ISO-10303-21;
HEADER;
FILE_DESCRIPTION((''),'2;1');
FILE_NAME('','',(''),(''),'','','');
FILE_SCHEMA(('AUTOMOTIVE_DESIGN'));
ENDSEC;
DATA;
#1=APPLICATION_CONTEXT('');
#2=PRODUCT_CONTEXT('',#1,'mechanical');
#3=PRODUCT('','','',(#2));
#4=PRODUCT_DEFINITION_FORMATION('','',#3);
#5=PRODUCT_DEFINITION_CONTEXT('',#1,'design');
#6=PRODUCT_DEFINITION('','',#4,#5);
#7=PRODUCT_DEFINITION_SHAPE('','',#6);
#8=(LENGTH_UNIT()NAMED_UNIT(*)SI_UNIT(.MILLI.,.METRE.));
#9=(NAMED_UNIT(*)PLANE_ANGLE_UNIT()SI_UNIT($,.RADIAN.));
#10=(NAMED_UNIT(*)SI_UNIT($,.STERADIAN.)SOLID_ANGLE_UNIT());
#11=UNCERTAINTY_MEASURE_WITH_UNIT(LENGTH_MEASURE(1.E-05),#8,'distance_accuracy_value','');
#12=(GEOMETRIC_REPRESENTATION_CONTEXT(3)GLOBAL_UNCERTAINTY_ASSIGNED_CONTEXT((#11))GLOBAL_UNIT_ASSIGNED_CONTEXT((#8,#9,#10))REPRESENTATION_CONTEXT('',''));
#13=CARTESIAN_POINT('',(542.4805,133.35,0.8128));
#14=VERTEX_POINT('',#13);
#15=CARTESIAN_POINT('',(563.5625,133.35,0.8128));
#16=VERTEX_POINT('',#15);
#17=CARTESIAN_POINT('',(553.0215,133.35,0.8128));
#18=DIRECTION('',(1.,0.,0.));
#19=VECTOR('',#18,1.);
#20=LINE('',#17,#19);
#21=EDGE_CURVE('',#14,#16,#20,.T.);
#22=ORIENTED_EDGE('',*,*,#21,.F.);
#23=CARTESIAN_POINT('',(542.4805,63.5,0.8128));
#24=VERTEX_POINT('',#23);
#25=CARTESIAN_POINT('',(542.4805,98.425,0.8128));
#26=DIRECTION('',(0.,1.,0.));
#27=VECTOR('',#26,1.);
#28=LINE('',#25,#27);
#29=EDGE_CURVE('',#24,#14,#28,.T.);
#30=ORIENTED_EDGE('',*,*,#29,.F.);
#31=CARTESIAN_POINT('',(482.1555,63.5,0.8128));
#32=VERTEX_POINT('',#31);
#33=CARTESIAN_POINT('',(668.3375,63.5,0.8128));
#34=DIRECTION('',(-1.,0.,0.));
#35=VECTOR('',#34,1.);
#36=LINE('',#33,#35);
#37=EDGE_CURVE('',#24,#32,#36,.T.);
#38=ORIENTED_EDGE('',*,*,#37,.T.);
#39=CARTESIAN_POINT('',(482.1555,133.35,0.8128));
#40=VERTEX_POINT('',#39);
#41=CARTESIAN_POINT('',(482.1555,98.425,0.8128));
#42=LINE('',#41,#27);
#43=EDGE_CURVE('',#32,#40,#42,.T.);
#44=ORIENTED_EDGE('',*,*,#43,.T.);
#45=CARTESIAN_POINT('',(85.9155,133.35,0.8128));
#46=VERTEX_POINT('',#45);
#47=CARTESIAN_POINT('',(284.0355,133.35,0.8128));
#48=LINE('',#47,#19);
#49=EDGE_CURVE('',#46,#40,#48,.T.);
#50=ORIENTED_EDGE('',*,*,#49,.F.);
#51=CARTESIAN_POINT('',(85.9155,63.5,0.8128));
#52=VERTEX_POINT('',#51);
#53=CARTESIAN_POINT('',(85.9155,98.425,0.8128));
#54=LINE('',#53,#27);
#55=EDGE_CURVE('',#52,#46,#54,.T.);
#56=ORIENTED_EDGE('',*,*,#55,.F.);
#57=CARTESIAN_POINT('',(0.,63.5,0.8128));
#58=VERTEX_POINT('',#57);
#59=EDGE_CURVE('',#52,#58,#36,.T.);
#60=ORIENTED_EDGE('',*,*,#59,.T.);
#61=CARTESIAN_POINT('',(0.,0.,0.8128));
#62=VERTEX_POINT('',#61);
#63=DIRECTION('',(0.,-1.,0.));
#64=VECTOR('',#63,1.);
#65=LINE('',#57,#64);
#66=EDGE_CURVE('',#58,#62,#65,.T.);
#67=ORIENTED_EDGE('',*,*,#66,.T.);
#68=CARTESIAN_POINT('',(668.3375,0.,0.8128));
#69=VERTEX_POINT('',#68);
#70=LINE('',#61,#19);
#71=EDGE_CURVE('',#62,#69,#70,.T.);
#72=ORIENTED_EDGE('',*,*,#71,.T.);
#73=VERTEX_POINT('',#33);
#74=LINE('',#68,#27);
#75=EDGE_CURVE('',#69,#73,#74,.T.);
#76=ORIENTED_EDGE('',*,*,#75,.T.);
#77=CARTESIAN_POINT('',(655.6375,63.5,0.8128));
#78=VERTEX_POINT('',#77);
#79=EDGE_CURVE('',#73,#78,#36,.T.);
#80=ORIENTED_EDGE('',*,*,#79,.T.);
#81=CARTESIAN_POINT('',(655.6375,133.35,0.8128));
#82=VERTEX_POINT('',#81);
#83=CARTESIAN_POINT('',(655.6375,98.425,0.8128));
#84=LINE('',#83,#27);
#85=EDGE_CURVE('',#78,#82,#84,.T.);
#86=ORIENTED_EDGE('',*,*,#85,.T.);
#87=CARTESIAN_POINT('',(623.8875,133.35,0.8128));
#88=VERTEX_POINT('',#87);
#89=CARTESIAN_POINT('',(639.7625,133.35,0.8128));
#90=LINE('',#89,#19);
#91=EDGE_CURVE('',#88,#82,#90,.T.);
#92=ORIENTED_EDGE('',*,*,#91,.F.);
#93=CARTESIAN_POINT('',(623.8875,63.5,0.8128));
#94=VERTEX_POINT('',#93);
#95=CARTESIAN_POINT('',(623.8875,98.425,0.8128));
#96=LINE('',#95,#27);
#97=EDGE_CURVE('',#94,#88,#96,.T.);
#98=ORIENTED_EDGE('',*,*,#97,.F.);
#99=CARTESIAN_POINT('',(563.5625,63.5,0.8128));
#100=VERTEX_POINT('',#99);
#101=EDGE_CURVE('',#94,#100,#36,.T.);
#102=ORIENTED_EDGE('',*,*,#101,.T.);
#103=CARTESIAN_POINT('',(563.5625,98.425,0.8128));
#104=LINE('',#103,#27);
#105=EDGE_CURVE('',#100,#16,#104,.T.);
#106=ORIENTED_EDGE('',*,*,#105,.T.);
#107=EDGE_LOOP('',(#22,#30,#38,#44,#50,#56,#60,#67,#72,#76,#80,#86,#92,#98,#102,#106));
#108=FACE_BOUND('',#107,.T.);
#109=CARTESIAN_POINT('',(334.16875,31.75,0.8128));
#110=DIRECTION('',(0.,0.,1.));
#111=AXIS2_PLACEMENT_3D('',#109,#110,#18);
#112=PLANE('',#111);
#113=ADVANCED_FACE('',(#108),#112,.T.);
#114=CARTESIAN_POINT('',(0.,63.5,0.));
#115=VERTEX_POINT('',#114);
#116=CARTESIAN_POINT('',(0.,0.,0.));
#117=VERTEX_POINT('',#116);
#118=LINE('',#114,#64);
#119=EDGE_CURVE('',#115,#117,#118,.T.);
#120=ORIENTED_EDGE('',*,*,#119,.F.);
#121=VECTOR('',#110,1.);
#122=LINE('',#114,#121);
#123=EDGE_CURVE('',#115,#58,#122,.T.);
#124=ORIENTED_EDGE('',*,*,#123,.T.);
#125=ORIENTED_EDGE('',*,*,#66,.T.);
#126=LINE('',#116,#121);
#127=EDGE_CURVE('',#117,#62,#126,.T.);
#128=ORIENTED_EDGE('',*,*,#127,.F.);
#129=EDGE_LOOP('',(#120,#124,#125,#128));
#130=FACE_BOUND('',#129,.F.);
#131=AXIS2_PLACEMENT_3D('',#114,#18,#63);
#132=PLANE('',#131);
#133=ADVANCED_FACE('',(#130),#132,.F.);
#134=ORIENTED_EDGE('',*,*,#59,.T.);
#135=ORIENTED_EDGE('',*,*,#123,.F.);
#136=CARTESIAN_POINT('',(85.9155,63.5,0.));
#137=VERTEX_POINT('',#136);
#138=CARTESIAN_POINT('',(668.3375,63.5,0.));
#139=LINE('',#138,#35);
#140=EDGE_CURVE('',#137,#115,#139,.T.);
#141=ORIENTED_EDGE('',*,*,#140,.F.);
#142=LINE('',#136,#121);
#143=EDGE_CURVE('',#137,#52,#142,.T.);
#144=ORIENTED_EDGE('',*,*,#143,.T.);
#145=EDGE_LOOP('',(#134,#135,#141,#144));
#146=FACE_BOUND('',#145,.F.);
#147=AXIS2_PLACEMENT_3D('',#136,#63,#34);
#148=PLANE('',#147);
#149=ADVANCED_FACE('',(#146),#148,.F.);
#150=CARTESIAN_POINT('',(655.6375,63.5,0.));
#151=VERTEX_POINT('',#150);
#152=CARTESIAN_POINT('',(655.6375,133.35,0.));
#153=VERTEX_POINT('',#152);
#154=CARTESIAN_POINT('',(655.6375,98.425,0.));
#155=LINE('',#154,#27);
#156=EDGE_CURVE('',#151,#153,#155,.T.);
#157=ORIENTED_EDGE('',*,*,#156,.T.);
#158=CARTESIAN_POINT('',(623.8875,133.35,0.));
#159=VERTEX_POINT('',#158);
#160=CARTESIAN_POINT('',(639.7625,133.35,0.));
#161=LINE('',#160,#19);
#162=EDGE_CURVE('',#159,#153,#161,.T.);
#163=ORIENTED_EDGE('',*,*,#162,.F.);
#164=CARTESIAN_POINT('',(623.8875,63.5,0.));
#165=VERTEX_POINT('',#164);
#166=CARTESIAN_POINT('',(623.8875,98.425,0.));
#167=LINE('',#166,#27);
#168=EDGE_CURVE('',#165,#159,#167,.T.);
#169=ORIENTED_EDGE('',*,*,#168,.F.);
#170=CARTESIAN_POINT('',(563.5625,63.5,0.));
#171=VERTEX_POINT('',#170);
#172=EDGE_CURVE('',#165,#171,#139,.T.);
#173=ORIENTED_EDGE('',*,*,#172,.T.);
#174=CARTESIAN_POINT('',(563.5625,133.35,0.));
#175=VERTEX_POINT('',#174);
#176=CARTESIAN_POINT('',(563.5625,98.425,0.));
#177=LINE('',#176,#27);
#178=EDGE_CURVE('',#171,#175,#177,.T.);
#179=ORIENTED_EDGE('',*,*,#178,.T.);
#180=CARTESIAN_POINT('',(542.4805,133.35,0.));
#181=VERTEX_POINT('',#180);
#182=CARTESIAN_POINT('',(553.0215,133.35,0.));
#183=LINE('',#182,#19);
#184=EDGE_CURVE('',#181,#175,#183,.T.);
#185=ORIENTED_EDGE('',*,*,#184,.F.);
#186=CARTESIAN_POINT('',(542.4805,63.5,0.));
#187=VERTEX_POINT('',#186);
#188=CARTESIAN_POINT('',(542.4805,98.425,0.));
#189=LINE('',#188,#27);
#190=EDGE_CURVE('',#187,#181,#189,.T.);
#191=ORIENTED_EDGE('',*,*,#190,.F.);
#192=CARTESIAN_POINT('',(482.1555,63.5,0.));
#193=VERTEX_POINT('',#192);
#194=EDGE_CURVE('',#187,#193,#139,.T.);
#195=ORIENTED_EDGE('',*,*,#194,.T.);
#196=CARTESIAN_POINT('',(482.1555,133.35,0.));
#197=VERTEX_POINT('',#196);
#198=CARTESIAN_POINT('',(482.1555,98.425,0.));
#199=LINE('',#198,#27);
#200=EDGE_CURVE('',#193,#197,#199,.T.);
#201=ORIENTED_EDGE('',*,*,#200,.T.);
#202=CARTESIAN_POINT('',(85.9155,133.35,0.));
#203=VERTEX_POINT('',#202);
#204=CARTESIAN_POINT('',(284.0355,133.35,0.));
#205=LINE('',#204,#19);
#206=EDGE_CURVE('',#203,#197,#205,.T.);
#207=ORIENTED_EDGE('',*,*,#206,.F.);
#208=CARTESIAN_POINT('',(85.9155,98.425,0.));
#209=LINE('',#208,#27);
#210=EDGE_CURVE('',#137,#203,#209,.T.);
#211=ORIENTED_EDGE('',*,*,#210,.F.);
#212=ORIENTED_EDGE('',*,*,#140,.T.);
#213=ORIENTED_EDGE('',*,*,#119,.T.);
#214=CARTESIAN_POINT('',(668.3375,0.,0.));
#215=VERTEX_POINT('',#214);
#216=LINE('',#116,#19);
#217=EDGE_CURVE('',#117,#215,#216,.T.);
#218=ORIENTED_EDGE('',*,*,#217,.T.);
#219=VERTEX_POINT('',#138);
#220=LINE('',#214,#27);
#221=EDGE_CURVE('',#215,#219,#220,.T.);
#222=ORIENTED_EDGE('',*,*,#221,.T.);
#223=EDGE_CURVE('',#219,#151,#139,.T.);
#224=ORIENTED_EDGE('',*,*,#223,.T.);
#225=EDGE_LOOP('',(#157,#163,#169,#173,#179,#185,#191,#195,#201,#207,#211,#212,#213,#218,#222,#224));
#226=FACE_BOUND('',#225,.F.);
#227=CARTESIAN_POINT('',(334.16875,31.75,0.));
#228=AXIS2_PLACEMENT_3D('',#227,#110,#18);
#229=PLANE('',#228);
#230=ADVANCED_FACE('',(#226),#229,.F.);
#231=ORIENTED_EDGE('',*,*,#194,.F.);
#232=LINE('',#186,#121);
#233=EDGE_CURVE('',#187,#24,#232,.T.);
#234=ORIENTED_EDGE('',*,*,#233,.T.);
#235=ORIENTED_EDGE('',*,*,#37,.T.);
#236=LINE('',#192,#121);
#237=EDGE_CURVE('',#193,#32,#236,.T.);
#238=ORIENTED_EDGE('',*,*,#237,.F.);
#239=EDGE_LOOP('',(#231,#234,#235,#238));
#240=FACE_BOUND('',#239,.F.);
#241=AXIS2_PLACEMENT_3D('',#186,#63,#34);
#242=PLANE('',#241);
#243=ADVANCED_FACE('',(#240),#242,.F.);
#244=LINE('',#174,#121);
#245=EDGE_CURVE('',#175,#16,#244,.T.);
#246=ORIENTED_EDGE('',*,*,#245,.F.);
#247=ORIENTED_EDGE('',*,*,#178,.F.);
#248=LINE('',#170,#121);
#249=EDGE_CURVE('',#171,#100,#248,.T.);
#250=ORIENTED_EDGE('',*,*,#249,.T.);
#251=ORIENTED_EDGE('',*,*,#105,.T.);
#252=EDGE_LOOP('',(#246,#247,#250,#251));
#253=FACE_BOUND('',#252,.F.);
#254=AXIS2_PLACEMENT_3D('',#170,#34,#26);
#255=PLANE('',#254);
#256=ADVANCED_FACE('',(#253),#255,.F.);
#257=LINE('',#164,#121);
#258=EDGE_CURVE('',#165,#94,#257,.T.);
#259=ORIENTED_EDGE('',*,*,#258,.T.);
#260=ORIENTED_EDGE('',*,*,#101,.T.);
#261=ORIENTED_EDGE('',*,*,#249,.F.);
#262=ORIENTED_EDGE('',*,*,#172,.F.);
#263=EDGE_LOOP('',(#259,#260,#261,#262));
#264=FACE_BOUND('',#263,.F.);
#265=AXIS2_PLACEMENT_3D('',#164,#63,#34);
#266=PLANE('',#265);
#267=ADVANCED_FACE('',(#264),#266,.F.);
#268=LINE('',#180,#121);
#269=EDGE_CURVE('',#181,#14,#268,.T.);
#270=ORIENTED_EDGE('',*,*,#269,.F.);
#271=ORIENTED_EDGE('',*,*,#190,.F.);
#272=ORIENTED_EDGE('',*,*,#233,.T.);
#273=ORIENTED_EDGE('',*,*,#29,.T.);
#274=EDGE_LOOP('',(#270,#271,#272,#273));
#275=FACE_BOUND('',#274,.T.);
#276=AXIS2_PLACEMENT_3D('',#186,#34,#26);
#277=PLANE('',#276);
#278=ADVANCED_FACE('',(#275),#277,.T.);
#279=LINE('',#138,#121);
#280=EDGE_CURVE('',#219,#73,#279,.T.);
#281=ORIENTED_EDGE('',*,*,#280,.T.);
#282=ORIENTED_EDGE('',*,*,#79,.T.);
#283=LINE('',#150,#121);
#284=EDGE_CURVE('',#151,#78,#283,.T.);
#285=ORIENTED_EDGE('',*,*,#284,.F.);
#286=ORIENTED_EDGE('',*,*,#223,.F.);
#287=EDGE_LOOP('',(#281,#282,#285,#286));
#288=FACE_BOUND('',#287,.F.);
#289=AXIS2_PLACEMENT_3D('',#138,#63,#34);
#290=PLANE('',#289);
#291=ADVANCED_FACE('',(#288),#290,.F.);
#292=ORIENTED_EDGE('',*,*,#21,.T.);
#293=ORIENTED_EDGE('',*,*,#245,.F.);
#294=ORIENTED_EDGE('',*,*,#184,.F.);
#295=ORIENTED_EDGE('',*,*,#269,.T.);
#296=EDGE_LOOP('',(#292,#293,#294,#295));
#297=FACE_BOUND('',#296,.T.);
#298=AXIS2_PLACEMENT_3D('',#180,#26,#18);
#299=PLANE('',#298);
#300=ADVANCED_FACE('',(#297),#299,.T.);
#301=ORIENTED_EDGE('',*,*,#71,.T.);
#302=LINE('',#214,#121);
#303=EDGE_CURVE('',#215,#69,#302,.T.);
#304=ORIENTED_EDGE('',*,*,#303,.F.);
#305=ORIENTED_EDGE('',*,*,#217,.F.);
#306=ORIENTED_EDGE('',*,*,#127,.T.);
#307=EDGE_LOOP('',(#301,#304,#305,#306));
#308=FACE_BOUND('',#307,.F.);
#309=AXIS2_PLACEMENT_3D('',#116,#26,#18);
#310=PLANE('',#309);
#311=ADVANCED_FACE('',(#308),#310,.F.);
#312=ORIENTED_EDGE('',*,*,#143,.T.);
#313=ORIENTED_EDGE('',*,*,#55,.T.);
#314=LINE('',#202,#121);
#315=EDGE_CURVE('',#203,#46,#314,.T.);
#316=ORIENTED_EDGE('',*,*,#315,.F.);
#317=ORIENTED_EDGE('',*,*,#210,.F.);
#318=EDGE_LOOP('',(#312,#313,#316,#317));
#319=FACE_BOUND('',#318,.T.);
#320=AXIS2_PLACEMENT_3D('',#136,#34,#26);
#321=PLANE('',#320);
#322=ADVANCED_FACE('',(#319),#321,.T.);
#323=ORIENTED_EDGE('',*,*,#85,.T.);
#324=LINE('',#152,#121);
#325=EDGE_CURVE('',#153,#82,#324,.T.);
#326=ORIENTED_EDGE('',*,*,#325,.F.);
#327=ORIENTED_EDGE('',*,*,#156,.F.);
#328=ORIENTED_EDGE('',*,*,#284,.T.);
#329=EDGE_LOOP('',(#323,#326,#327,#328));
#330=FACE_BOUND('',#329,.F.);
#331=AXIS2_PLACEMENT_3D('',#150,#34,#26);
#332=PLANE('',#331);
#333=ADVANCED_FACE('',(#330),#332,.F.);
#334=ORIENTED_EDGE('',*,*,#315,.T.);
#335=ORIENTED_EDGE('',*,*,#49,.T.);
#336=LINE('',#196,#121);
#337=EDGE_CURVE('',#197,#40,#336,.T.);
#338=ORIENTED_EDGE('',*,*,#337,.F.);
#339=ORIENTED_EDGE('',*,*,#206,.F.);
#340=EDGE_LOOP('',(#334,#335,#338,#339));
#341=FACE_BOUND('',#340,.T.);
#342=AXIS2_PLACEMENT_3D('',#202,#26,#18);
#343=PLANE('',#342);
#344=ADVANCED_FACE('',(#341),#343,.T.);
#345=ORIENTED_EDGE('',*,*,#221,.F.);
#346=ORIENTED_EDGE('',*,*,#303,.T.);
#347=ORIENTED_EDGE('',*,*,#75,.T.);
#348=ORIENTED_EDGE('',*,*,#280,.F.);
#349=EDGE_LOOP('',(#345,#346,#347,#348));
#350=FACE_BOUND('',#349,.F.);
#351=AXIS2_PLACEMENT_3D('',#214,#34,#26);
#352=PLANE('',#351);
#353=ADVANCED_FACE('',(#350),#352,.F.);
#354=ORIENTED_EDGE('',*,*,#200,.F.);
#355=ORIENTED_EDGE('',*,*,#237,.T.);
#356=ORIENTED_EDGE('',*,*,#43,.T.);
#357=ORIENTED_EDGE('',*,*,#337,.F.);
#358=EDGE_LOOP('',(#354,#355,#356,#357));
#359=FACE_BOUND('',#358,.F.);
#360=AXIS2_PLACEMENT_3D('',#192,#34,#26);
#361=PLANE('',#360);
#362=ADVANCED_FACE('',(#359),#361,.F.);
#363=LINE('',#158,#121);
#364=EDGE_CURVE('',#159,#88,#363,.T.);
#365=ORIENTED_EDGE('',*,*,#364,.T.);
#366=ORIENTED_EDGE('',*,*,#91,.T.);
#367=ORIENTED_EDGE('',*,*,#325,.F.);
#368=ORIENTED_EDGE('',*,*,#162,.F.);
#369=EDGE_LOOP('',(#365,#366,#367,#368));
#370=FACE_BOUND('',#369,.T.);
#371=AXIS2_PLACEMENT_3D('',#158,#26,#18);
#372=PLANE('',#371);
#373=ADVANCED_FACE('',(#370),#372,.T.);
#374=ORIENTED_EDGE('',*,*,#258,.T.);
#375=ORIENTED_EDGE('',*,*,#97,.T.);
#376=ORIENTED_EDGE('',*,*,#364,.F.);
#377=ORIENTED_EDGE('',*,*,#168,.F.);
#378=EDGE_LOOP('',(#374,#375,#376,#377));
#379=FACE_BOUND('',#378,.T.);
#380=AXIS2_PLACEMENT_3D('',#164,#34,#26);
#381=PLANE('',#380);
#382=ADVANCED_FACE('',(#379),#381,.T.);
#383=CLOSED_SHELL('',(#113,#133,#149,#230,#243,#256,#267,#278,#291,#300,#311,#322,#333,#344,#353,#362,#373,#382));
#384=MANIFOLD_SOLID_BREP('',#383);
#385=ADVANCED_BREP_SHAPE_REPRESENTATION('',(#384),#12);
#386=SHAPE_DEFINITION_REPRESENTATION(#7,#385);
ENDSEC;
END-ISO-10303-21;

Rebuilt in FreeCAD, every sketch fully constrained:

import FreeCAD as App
import Part
import Sketcher

V = App.Vector
Q = App.Units.Quantity


def add_polygon(sketch, points):
    """Adds a closed chain of lines whose ends are joined by coincident constraints."""
    first, n = sketch.GeometryCount, len(points)
    for a, b in zip(points, points[1:] + points[:1]):
        sketch.addGeometry(Part.LineSegment(App.Vector(*a, 0), App.Vector(*b, 0)), False)
    for i in range(n):
        sketch.addConstraint(Sketcher.Constraint("Coincident", first + i, 2, first + (i + 1) % n, 1))

doc = App.newDocument("Part")
params = doc.addObject("Spreadsheet::Sheet", "Params")
for row, (alias, value) in enumerate([
    ("sketch1_width", "0.5 in"),
    ("sketch1_width2", "15.6 in"),
    ("sketch1_height", "2.5 in"),
    ("sketch1_width3", "1.25 in"),
    ("sketch1_width4", "0.83 in"),
    ("pad1_length", "0.032 in"),
], start=1):
    params.set(f"A{row}", alias)
    params.set(f"B{row}", "=" + value)
    params.setAlias(f"B{row}", alias)

body = doc.addObject("PartDesign::Body", "Body")

# Sketch on XY plane
sketch1 = body.newObject("Sketcher::SketchObject", "Sketch")
sketch1.AttachmentSupport = (doc.getObject("XY_Plane"), [""])
sketch1.MapMode = "FlatFace"
add_polygon(sketch1, [(0, 64), (0, 0), (668, 0), (668, 64), (656, 64), (656, 133), (624, 133), (624, 64), (564, 64), (564, 133), (542, 133), (542, 64), (482, 64), (482, 133), (86, 133), (86, 64)])  # lines 0-15
sketch1.addConstraint(Sketcher.Constraint("Vertical", 0))
sketch1.addConstraint(Sketcher.Constraint("Horizontal", 1))
sketch1.addConstraint(Sketcher.Constraint("Vertical", 2))
sketch1.addConstraint(Sketcher.Constraint("Horizontal", 3))
sketch1.addConstraint(Sketcher.Constraint("Vertical", 4))
sketch1.addConstraint(Sketcher.Constraint("Horizontal", 5))
sketch1.addConstraint(Sketcher.Constraint("Vertical", 6))
sketch1.addConstraint(Sketcher.Constraint("Horizontal", 7))
sketch1.addConstraint(Sketcher.Constraint("Vertical", 8))
sketch1.addConstraint(Sketcher.Constraint("Horizontal", 9))
sketch1.addConstraint(Sketcher.Constraint("Vertical", 10))
sketch1.addConstraint(Sketcher.Constraint("Horizontal", 11))
sketch1.addConstraint(Sketcher.Constraint("Vertical", 12))
sketch1.addConstraint(Sketcher.Constraint("Horizontal", 13))
sketch1.addConstraint(Sketcher.Constraint("Vertical", 14))
sketch1.addConstraint(Sketcher.Constraint("Horizontal", 15))
sketch1.addConstraint(Sketcher.Constraint("Coincident", 0, 2, -1, 1))
sketch1.addConstraint(Sketcher.Constraint("Horizontal", 3, 2, 6, 2))
sketch1.addConstraint(Sketcher.Constraint("Horizontal", 5, 2, 8, 2))
sketch1.addConstraint(Sketcher.Constraint("Horizontal", 7, 2, 10, 2))
sketch1.addConstraint(Sketcher.Constraint("Horizontal", 9, 2, 12, 2))
sketch1.addConstraint(Sketcher.Constraint("Horizontal", 11, 2, 14, 2))
sketch1.addConstraint(Sketcher.Constraint("Equal", 7, 11))
sketch1.addConstraint(Sketcher.Constraint("DistanceX", 3, 2, 3, 1, Q("0.5 in")))
sketch1.addConstraint(Sketcher.Constraint("DistanceX", 13, 2, 13, 1, Q("15.6 in")))
sketch1.addConstraint(Sketcher.Constraint("DistanceY", 0, 2, 0, 1, Q("2.5 in")))
sketch1.addConstraint(Sketcher.Constraint("DistanceX", 5, 2, 5, 1, Q("1.25 in")))
sketch1.addConstraint(Sketcher.Constraint("DistanceX", 9, 2, 9, 1, Q("0.83 in")))
sketch1.addConstraint(Sketcher.Constraint("DistanceY", 4, 1, 4, 2, Q("2.75 in")))
sketch1.addConstraint(Sketcher.Constraint("DistanceX", 1, 1, 1, 2, Q("26.3125 in")))
sketch1.addConstraint(Sketcher.Constraint("DistanceX", 7, 2, 7, 1, Q("2.375 in")))
sketch1.setExpression("Constraints[39]", "Params.sketch1_width")
sketch1.setExpression("Constraints[40]", "Params.sketch1_width2")
sketch1.setExpression("Constraints[41]", "Params.sketch1_height")
sketch1.setExpression("Constraints[42]", "Params.sketch1_width3")
sketch1.setExpression("Constraints[43]", "Params.sketch1_width4")
pad1 = body.newObject("PartDesign::Pad", "Pad")
pad1.Profile = sketch1
pad1.setExpression("Length", "Params.pad1_length")

doc.recompute()
